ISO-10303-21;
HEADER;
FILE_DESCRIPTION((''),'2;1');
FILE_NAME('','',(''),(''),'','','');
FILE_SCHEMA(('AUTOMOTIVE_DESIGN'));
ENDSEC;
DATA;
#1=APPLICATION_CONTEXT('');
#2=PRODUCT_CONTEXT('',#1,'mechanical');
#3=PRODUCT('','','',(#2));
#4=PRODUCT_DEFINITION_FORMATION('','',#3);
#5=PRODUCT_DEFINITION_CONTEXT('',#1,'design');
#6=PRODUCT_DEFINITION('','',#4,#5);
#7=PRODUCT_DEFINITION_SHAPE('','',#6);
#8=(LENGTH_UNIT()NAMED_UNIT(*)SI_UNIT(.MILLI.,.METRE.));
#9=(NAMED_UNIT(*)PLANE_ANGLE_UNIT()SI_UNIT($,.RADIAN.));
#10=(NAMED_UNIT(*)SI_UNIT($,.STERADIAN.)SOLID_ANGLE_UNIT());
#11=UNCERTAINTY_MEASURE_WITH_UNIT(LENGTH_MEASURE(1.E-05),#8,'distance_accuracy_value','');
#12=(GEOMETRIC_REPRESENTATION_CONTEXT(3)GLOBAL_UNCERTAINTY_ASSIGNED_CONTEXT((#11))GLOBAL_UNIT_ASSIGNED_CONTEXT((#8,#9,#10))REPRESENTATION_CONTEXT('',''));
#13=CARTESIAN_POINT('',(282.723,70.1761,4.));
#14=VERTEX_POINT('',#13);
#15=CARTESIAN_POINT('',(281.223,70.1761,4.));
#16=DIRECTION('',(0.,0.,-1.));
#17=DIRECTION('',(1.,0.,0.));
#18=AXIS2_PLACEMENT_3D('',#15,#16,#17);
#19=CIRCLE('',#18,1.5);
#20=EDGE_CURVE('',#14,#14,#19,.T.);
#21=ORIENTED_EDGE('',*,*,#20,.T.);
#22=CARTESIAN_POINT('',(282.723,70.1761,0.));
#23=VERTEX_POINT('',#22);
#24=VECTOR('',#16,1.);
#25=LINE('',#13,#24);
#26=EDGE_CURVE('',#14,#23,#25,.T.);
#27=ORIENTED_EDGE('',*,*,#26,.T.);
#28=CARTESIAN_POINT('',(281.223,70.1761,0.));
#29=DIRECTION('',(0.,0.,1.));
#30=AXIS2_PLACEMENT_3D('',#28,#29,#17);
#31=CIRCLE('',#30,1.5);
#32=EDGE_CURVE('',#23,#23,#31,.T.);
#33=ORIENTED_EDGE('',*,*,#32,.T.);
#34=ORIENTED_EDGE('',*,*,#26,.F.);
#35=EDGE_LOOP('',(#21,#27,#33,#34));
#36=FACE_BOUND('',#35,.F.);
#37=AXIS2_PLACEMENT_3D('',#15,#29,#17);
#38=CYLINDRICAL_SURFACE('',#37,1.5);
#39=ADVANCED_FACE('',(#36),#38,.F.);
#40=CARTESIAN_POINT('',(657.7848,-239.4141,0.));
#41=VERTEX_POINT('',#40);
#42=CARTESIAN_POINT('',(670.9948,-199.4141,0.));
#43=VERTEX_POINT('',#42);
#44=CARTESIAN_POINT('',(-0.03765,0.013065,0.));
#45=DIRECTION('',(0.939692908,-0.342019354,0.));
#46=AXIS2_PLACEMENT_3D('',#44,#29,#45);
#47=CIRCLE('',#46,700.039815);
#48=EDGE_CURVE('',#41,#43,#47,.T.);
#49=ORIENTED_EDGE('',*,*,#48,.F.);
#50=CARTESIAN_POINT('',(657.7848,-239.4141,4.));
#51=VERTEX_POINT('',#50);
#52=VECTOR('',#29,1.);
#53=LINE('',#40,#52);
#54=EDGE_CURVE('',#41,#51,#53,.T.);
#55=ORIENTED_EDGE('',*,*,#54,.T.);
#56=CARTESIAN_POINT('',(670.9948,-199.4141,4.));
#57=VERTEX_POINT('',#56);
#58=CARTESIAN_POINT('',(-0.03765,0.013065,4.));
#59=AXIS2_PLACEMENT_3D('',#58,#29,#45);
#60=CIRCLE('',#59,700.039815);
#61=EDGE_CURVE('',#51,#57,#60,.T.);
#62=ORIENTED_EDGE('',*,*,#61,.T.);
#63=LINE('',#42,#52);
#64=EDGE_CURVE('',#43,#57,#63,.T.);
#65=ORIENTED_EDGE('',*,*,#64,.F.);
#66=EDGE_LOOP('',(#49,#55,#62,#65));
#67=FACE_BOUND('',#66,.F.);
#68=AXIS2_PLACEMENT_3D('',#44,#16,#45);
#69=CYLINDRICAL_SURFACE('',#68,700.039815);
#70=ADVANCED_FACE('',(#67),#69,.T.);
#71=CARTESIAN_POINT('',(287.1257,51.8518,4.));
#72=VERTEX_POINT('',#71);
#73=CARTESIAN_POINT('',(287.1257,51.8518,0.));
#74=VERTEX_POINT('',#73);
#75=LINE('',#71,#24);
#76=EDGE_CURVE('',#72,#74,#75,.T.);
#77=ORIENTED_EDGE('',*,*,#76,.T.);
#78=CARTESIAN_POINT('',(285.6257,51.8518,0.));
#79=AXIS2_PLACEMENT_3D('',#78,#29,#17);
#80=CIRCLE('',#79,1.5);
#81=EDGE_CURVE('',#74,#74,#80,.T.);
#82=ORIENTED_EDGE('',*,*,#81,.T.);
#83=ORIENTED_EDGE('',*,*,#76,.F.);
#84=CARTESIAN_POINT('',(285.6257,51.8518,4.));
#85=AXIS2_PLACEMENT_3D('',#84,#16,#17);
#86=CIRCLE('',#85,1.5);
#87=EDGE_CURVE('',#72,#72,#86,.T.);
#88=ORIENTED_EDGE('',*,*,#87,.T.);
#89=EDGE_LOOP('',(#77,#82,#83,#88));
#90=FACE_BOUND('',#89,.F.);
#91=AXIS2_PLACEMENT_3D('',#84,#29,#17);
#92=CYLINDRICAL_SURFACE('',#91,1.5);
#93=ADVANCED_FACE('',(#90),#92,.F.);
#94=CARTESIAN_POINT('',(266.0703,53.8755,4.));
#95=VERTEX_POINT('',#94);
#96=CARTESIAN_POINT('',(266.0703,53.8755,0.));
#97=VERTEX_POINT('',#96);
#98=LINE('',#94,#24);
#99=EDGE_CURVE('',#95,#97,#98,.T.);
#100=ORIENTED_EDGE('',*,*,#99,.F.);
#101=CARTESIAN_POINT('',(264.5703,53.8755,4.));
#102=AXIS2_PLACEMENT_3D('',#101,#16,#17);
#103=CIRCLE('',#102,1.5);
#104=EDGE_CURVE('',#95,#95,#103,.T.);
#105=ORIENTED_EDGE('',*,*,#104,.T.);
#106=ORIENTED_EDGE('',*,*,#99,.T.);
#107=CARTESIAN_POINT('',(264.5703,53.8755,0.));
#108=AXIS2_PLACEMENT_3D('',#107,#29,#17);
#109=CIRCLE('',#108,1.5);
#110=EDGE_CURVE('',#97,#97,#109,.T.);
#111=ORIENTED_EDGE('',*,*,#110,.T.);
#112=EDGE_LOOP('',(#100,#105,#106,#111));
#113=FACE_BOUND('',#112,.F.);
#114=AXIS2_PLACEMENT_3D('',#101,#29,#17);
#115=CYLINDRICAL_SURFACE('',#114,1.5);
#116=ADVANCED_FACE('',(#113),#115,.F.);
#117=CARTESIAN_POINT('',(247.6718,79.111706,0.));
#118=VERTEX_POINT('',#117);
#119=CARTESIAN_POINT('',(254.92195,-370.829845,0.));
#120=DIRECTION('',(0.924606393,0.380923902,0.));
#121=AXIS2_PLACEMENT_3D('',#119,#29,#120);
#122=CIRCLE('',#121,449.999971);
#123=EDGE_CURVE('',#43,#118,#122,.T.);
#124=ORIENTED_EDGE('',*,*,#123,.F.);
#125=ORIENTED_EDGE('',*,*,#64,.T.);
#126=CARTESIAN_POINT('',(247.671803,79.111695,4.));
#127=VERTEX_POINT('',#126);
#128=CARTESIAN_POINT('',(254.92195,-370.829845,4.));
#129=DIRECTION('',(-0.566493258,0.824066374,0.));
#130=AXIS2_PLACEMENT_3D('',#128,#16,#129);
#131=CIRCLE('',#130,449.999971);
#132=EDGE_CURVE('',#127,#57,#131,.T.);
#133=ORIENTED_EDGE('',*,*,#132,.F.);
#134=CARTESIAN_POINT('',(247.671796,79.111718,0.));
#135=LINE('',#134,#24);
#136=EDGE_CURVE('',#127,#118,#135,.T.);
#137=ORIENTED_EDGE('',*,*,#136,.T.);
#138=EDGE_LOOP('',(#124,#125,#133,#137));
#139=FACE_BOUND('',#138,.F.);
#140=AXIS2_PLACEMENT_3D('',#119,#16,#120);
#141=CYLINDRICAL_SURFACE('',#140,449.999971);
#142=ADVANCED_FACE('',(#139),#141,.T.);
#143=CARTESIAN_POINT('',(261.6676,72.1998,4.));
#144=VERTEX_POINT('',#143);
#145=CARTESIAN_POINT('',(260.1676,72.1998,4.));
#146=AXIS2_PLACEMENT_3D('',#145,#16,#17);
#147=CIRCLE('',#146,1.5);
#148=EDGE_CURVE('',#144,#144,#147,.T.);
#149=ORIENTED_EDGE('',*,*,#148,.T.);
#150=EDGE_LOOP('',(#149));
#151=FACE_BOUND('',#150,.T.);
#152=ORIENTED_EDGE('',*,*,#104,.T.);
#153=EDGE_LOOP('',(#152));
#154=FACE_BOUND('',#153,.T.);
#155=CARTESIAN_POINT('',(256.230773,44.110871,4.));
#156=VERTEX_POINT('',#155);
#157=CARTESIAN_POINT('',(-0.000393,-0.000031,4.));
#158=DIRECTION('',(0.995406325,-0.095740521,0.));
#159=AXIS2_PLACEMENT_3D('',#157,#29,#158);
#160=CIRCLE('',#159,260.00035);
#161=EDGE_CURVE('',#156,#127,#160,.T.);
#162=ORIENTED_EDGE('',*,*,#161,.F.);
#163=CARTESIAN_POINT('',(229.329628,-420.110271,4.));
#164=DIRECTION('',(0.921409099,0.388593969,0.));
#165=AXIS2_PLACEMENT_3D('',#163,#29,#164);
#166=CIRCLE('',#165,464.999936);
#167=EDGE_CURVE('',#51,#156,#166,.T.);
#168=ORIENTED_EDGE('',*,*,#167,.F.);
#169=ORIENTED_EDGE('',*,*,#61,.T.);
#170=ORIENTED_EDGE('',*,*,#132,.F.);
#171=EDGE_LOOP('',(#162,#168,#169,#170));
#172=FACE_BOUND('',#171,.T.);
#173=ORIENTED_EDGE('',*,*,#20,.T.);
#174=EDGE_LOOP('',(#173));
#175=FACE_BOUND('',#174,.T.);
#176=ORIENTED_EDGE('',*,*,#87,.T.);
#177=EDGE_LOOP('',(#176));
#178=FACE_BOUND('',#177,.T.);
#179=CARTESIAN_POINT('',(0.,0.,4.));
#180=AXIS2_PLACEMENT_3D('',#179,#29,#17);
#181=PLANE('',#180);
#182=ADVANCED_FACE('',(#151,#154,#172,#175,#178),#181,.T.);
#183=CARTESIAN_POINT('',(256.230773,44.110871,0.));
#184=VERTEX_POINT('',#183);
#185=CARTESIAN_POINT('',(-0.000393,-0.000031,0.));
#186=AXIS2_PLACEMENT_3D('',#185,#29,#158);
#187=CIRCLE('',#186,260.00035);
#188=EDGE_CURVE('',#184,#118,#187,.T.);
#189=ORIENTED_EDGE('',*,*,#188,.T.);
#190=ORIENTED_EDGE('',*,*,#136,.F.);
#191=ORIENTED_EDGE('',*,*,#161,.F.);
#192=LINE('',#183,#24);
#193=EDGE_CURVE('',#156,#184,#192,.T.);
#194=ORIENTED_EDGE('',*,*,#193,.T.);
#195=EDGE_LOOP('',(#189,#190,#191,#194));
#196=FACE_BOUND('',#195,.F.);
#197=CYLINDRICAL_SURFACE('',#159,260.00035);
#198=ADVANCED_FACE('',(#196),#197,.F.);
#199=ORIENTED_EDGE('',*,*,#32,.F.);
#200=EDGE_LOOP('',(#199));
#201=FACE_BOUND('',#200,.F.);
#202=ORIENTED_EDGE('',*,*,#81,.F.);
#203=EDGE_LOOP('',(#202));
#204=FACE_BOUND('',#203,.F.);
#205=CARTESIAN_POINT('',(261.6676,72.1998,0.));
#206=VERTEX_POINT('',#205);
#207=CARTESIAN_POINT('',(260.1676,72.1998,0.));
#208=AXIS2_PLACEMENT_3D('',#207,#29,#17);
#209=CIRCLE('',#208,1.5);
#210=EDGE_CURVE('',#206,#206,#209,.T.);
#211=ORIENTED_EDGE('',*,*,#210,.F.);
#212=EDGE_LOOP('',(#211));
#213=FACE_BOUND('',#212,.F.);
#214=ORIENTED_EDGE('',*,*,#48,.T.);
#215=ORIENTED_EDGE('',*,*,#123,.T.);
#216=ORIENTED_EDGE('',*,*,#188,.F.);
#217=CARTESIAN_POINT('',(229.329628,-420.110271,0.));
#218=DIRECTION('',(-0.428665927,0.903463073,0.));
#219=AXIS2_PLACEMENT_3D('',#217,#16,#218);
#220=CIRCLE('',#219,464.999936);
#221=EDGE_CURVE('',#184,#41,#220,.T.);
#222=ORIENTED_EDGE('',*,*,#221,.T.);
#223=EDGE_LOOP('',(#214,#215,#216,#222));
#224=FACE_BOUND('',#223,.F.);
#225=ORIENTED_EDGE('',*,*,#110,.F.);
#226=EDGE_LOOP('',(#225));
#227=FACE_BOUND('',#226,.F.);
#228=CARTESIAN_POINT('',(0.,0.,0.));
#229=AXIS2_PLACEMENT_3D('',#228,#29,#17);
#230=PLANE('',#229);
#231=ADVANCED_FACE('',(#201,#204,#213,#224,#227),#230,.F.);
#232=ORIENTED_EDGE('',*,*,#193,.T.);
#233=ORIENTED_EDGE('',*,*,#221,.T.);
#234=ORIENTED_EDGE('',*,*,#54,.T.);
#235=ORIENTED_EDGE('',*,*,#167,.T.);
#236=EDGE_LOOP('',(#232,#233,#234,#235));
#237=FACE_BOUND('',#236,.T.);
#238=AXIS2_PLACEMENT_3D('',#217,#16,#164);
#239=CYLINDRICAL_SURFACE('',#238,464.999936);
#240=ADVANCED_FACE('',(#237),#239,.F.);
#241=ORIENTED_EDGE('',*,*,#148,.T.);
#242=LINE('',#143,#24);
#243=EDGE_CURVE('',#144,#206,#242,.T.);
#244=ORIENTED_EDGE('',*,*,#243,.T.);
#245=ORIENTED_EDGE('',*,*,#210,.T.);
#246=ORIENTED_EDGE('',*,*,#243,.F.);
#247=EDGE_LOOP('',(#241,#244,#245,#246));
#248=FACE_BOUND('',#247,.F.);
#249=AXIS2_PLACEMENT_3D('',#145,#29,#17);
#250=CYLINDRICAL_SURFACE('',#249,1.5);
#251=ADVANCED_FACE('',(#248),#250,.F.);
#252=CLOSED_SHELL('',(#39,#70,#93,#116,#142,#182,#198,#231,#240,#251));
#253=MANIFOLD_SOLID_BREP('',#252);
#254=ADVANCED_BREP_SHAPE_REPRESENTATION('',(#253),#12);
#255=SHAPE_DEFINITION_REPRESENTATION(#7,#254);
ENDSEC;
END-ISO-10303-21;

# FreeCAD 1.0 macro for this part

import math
import FreeCAD as App
import Part
import Sketcher
from FreeCAD import Vector

doc = App.newDocument("Part")
body = doc.addObject("PartDesign::Body", "Body")

# Sketch on XY plane
sketch1 = doc.addObject("Sketcher::SketchObject", "Sketch")
body.addObject(sketch1)
sketch1.AttachmentSupport = (doc.XY_Plane, [""])
sketch1.MapMode = "FlatFace"
sketch1.addGeometry([
    Part.ArcOfCircle(Part.Circle(Vector(0, 0, 0), Vector(0, 0, 1), 700), math.radians(-20), math.radians(-16.55)),
    Part.ArcOfCircle(Part.Circle(Vector(255, -371, 0), Vector(0, 0, 1), 450), math.radians(22), math.radians(125)),
    Part.LineSegment(Vector(0, 0, 0), Vector(30, 0, 0)),
    Part.ArcOfCircle(Part.Circle(Vector(229, -420, 0), Vector(0, 0, 1), 465), math.radians(23), math.radians(115)),
], False)
sketch1.addConstraint([
    Sketcher.Constraint("Coincident", 0, 2, 1, 1),
    Sketcher.Constraint("Coincident", 1, 2, 2, 1),
    Sketcher.Constraint("Coincident", 2, 2, 3, 2),
    Sketcher.Constraint("Coincident", 3, 1, 0, 1),
    Sketcher.Constraint("Horizontal", 2),
    Sketcher.Constraint("Coincident", 1, 2, -1, 1),
    Sketcher.Constraint("Radius", 1, 450.0),
    Sketcher.Constraint("Radius", 3, 465.0),
    Sketcher.Constraint("DistanceX", 2, 1, 2, 2, 30.0),
    Sketcher.Constraint("DistanceY", 3, 1, 0, 2, 40.0),
    Sketcher.Constraint("Radius", 0, 700.0398),
    Sketcher.Constraint("DistanceY", 1, 3, -1, 1, 370.83),
    Sketcher.Constraint("DistanceY", -1, 1, 0, 3, 0.013),
    Sketcher.Constraint("DistanceY", 0, 2, -1, 1, 199.414),
])
pad1 = doc.addObject("PartDesign::Pad", "Pad")
body.addObject(pad1)
pad1.Profile = sketch1
pad1.Length = 4

# Sketch on XY plane
sketch2 = doc.addObject("Sketcher::SketchObject", "Sketch001")
body.addObject(sketch2)
sketch2.AttachmentSupport = (doc.XY_Plane, [""])
sketch2.MapMode = "FlatFace"
sketch2.AttachmentOffset = App.Placement(Vector(0, 0, 4), App.Rotation())
sketch2.addGeometry([
    Part.ArcOfCircle(Part.Circle(Vector(0, 0, 0), Vector(0, 0, 1), 90), math.radians(14.51), math.radians(34.51)),
    Part.LineSegment(Vector(74, 51, 0), Vector(0, 0, 0)),
    Part.LineSegment(Vector(0, 0, 0), Vector(87, 23, 0)),
], False)
sketch2.addConstraint([
    Sketcher.Constraint("Coincident", 0, 2, 1, 1),
    Sketcher.Constraint("Coincident", 1, 2, 2, 1),
    Sketcher.Constraint("Coincident", 2, 2, 0, 1),
    Sketcher.Constraint("Coincident", 1, 2, -1, 1),
    Sketcher.Constraint("Equal", 1, 2),
    Sketcher.Constraint("Distance", 1, 90.0),
    Sketcher.Constraint("Radius", 0, 90.001),
    Sketcher.Constraint("DistanceX", -1, 1, 0, 2, 74.166),
    Sketcher.Constraint("DistanceX", -1, 1, 2, 2, 87.131),
])
pad2 = doc.addObject("PartDesign::Pad", "Pad001")
body.addObject(pad2)
pad2.Profile = sketch2
pad2.Length = 4
pad2.Reversed = True

# Sketch on XY plane
sketch3 = doc.addObject("Sketcher::SketchObject", "Sketch002")
body.addObject(sketch3)
sketch3.AttachmentSupport = (doc.XY_Plane, [""])
sketch3.MapMode = "FlatFace"
sketch3.AttachmentOffset = App.Placement(Vector(0, 0, 4), App.Rotation())
sketch3.addGeometry([
    Part.ArcOfCircle(Part.Circle(Vector(229, -420, 0), Vector(0, 0, 1), 465), math.radians(107.95), math.radians(115.38)),
    Part.LineSegment(Vector(86, 22, 0), Vector(0, 0, 0)),
    Part.LineSegment(Vector(0, 0, 0), Vector(30, 0, 0)),
], False)
sketch3.addConstraint([
    Sketcher.Constraint("Coincident", 0, 1, 1, 1),
    Sketcher.Constraint("Coincident", 1, 2, 2, 1),
    Sketcher.Constraint("Coincident", 2, 2, 0, 2),
    Sketcher.Constraint("Horizontal", 2),
    Sketcher.Constraint("Coincident", 1, 2, -1, 1),
    Sketcher.Constraint("DistanceX", 2, 1, 2, 2, 30.0),
    Sketcher.Constraint("Radius", 0, 464.99),
    Sketcher.Constraint("Distance", 1, 88.8633),
    Sketcher.Constraint("DistanceX", -1, 1, 0, 3, 229.3262),
])
pocket1 = doc.addObject("PartDesign::Pocket", "Pocket")
body.addObject(pocket1)
pocket1.Profile = sketch3
pocket1.Length = 10

# Sketch on XY plane
sketch4 = doc.addObject("Sketcher::SketchObject", "Sketch003")
body.addObject(sketch4)
sketch4.AttachmentSupport = (doc.XY_Plane, [""])
sketch4.MapMode = "FlatFace"
sketch4.AttachmentOffset = App.Placement(Vector(0, 0, 4), App.Rotation())
sketch4.addGeometry([
    Part.LineSegment(Vector(8.2, 5.7, 0), Vector(0, 0, 0)),
    Part.LineSegment(Vector(0, 0, 0), Vector(9.7, 2.5, 0)),
    Part.ArcOfCircle(Part.Circle(Vector(0, 0, 0), Vector(0, 0, 1), 10), math.radians(14.51), math.radians(34.51)),
], False)
sketch4.addConstraint([
    Sketcher.Constraint("Coincident", 0, 2, 1, 1),
    Sketcher.Constraint("Coincident", 1, 2, 2, 1),
    Sketcher.Constraint("Coincident", 2, 2, 0, 1),
    Sketcher.Constraint("Coincident", 2, 3, -1, 1),
    Sketcher.Constraint("Coincident", 0, 2, -1, 1),
    Sketcher.Constraint("Radius", 2, 10.0),
    Sketcher.Constraint("DistanceY", 1, 2, 2, 2, 3.16),
    Sketcher.Constraint("DistanceY", -1, 1, 2, 2, 5.665),
])
pocket2 = doc.addObject("PartDesign::Pocket", "Pocket001")
body.addObject(pocket2)
pocket2.Profile = sketch4
pocket2.Length = 10

# Sketch on XY plane
sketch5 = doc.addObject("Sketcher::SketchObject", "Sketch004")
body.addObject(sketch5)
sketch5.AttachmentSupport = (doc.XY_Plane, [""])
sketch5.MapMode = "FlatFace"
sketch5.AttachmentOffset = App.Placement(Vector(0, 0, 4), App.Rotation())
sketch5.addGeometry([
    Part.LineSegment(Vector(0, 0, 0), Vector(259, -25, 0)),  # 0
    Part.ArcOfCircle(Part.Circle(Vector(0, 0, 0), Vector(0, 0, 1), 260), math.radians(-5), math.radians(35)),  # 1
    Part.LineSegment(Vector(214, 147, 0), Vector(74, 51, 0)),  # 2
    Part.LineSegment(Vector(74, 51, 0), Vector(8, 6, 0)),  # 3
    Part.LineSegment(Vector(8, 6, 0), Vector(0, 0, 0)),  # 4
], False)
sketch5.addConstraint([
    Sketcher.Constraint("Coincident", 0, 2, 1, 1),
    Sketcher.Constraint("Coincident", 1, 2, 2, 1),
    Sketcher.Constraint("Coincident", 2, 2, 3, 1),
    Sketcher.Constraint("Coincident", 3, 2, 4, 1),
    Sketcher.Constraint("Coincident", 4, 2, 0, 1),
    Sketcher.Constraint("Coincident", 1, 3, -1, 1),
    Sketcher.Constraint("Coincident", 4, 2, -1, 1),
    Sketcher.Constraint("Parallel", 2, 3),
    Sketcher.Constraint("Parallel", 3, 4),
    Sketcher.Constraint("Radius", 1, 260.0),
    Sketcher.Constraint("Distance", 2, 170.0),
    Sketcher.Constraint("Distance", 3, 80.0),
    Sketcher.Constraint("DistanceX", -1, 1, 2, 2, 74.166),
    Sketcher.Constraint("DistanceY", 0, 2, 2, 2, 75.877),
])
pocket3 = doc.addObject("PartDesign::Pocket", "Pocket002")
body.addObject(pocket3)
pocket3.Profile = sketch5
pocket3.Length = 10

# Sketch on XY plane
sketch6 = doc.addObject("Sketcher::SketchObject", "Sketch005")
body.addObject(sketch6)
sketch6.AttachmentSupport = (doc.XY_Plane, [""])
sketch6.MapMode = "FlatFace"
sketch6.AttachmentOffset = App.Placement(Vector(0, 0, 4), App.Rotation())
sketch6.addGeometry([
    Part.Circle(Vector(260.2, 72.2, 0), Vector(0, 0, 1), 1.5),
    Part.Circle(Vector(264.6, 53.9, 0), Vector(0, 0, 1), 1.5),
    Part.Circle(Vector(285.6, 51.9, 0), Vector(0, 0, 1), 1.5),
    Part.Circle(Vector(281.2, 70.2, 0), Vector(0, 0, 1), 1.5),
], False)
sketch6.addConstraint([
    Sketcher.Constraint("Equal", 0, 1),
    Sketcher.Constraint("Equal", 1, 2),
    Sketcher.Constraint("Equal", 2, 3),
    Sketcher.Constraint("Diameter", 0, 3.0),
    Sketcher.Constraint("DistanceX", -1, 1, 3, 3, 281.223),
    Sketcher.Constraint("DistanceY", -1, 1, 3, 3, 70.176),
    Sketcher.Constraint("DistanceX", 0, 3, 2, 3, 25.458),
    Sketcher.Constraint("DistanceY", 2, 3, 0, 3, 20.348),
    Sketcher.Constraint("DistanceX", -1, 1, 0, 3, 260.1676),
    Sketcher.Constraint("DistanceY", -1, 1, 0, 3, 72.1998),
    Sketcher.Constraint("DistanceX", -1, 1, 1, 3, 264.5703),
    Sketcher.Constraint("DistanceY", -1, 1, 1, 3, 53.8755),
])
pocket4 = doc.addObject("PartDesign::Pocket", "Pocket003")
body.addObject(pocket4)
pocket4.Profile = sketch6
pocket4.Type = "ThroughAll"

doc.recompute()
